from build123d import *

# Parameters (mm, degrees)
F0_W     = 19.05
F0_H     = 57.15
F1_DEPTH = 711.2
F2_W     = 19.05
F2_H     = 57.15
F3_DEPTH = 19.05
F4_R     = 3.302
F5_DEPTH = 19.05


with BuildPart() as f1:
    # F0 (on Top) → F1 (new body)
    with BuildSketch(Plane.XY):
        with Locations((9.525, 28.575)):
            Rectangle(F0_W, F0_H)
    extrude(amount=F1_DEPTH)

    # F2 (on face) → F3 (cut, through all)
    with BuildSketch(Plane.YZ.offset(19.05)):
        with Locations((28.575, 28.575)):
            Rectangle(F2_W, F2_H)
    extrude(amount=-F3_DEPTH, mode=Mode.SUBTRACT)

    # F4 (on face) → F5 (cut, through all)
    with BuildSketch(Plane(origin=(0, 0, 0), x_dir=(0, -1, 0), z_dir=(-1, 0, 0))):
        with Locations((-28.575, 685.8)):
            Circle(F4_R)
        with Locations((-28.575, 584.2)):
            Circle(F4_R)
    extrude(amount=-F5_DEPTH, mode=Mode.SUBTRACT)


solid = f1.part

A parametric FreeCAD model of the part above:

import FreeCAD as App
import Part
import Sketcher
from FreeCAD import Vector
Q = App.Units.Quantity


def add_polygon(sketch, points):
    """Adds a closed chain of lines whose ends are joined by coincident constraints."""
    first, n = sketch.GeometryCount, len(points)
    for a, b in zip(points, points[1:] + points[:1]):
        sketch.addGeometry(Part.LineSegment(App.Vector(*a, 0), App.Vector(*b, 0)), False)
    for i in range(n):
        sketch.addConstraint(Sketcher.Constraint("Coincident", first + i, 2, first + (i + 1) % n, 1))

doc = App.newDocument("Part")
params = doc.addObject("Spreadsheet::Sheet", "Params")
for row, (alias, value) in enumerate([
    ("sketch1_width", "0.75 in"),
    ("sketch1_height", "2.25 in"),
    ("pad1_length", "28 in"),
    ("sketch2_width", "0.75 in"),
    ("sketch2_height", "2.25 in"),
    ("sketch3_diameter", "0.26 in"),
], start=1):
    params.set(f"A{row}", alias)
    params.set(f"B{row}", "=" + value)
    params.setAlias(f"B{row}", alias)

body = doc.addObject("PartDesign::Body", "Body")

sketch1 = body.newObject("Sketcher::SketchObject", "Sketch")
sketch1.AttachmentSupport = (doc.getObject("XY_Plane"), [""])
sketch1.MapMode = "FlatFace"
add_polygon(sketch1, [(0, 57.15), (0, 0), (19.05, 0), (19.05, 57.15)])
sketch1.addConstraint([
    Sketcher.Constraint("Vertical", 0),
    Sketcher.Constraint("Horizontal", 1),
    Sketcher.Constraint("Vertical", 2),
    Sketcher.Constraint("Horizontal", 3),
    Sketcher.Constraint("Coincident", 0, 2, -1, 1),
    Sketcher.Constraint("DistanceX", 1, 1, 1, 2, Q("0.75 in")),
    Sketcher.Constraint("DistanceY", 0, 2, 0, 1, Q("2.25 in")),
])
sketch1.setExpression("Constraints[9]", "Params.sketch1_width")
sketch1.setExpression("Constraints[10]", "Params.sketch1_height")
pad1 = body.newObject("PartDesign::Pad", "Pad")
pad1.Profile = sketch1
pad1.setExpression("Length", "Params.pad1_length")

sketch2 = body.newObject("Sketcher::SketchObject", "Sketch001")
sketch2.AttachmentSupport = (doc.getObject("YZ_Plane"), [""])
sketch2.MapMode = "FlatFace"
sketch2.AttachmentOffset = App.Placement(Vector(0, 0, 0.75 * 25.4), App.Rotation())
add_polygon(sketch2, [(19.05, 57.15), (19.05, 0), (38.1, 0), (38.1, 57.15)])
sketch2.addConstraint([
    Sketcher.Constraint("Vertical", 0),
    Sketcher.Constraint("Horizontal", 1),
    Sketcher.Constraint("Vertical", 2),
    Sketcher.Constraint("Horizontal", 3),
    Sketcher.Constraint("PointOnObject", 0, 2, -1),
    Sketcher.Constraint("DistanceX", 1, 1, 1, 2, Q("0.75 in")),
    Sketcher.Constraint("DistanceY", 0, 2, 0, 1, Q("2.25 in")),
    Sketcher.Constraint("DistanceX", -1, 1, 1, 2, Q("1.5 in")),
])
sketch2.setExpression("Constraints[9]", "Params.sketch2_width")
sketch2.setExpression("Constraints[10]", "Params.sketch2_height")
pocket1 = body.newObject("PartDesign::Pocket", "Pocket")
pocket1.Profile = sketch2
pocket1.Type = "ThroughAll"

sketch3 = body.newObject("Sketcher::SketchObject", "Sketch002")
sketch3.AttachmentSupport = (doc.getObject("YZ_Plane"), [""])
sketch3.MapMode = "FlatFace"
sketch3.addGeometry([
    Part.Circle(Vector(28.575, 685.8, 0), Vector(0, 0, 1), 3.302),
    Part.Circle(Vector(28.575, 584.2, 0), Vector(0, 0, 1), 3.302),
], False)
sketch3.addConstraint([
    Sketcher.Constraint("Equal", 0, 1),
    Sketcher.Constraint("Vertical", 0, 3, 1, 3),
    Sketcher.Constraint("Diameter", 0, Q("0.26 in")),
    Sketcher.Constraint("DistanceY", -1, 1, 0, 3, Q("27 in")),
    Sketcher.Constraint("DistanceY", -1, 1, 1, 3, Q("23 in")),
    Sketcher.Constraint("DistanceX", -1, 1, 0, 3, Q("1.125 in")),
])
sketch3.setExpression("Constraints[2]", "Params.sketch3_diameter")
pocket2 = body.newObject("PartDesign::Pocket", "Pocket001")
pocket2.Profile = sketch3
pocket2.Type = "ThroughAll"
pocket2.Reversed = True

doc.recompute()
